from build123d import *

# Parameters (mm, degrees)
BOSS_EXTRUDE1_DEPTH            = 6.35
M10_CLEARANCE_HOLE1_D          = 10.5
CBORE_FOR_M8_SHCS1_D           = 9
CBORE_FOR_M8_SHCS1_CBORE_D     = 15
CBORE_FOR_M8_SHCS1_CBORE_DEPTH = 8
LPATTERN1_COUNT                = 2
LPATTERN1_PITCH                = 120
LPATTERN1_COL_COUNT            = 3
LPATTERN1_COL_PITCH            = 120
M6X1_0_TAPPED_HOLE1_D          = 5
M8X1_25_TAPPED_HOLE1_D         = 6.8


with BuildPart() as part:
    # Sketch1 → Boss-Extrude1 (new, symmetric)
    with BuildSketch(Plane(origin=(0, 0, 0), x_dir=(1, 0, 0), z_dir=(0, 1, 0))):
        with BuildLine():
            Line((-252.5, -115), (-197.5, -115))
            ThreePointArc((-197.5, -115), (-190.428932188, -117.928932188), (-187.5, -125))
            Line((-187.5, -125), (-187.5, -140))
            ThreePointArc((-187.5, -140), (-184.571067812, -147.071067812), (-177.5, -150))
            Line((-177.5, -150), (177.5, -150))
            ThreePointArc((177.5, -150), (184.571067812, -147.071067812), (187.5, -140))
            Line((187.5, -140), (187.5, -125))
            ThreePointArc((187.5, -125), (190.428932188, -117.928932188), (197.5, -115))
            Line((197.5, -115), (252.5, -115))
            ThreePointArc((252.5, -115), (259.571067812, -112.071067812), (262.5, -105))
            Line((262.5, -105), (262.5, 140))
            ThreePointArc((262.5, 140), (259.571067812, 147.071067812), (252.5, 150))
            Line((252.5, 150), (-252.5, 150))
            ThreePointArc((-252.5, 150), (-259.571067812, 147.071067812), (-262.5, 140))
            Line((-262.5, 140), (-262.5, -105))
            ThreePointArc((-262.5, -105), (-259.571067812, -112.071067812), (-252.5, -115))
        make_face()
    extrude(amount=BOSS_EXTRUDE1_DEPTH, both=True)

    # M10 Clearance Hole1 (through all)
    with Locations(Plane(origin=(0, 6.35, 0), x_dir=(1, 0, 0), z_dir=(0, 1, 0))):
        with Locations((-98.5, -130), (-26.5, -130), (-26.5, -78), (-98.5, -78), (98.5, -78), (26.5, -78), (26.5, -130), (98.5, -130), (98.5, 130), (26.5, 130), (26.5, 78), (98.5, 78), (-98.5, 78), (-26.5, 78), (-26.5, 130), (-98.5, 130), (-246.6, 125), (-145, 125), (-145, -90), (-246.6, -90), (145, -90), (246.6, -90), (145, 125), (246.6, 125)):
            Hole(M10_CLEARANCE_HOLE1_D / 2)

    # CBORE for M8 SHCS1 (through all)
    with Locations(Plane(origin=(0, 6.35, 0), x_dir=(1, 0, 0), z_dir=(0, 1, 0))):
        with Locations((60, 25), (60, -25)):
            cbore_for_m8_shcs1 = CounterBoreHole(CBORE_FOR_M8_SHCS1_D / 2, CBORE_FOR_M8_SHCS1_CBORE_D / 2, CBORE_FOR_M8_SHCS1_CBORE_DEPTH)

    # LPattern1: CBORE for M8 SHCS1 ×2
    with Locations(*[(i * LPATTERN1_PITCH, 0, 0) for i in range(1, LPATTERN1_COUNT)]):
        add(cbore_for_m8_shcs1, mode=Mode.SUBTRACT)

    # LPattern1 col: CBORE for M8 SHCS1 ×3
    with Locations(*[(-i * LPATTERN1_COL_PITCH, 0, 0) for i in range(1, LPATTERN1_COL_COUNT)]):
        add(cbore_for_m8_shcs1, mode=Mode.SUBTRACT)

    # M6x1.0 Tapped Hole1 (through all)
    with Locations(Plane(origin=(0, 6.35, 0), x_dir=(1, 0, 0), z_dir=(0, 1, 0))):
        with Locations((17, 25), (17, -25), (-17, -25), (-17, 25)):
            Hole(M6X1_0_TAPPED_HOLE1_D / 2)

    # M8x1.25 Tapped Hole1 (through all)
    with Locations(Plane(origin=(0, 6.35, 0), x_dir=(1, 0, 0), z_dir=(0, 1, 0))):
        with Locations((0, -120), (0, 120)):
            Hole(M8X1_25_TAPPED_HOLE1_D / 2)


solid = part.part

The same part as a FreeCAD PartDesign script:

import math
import FreeCAD as App
import Part
import Sketcher

doc = App.newDocument("Part")
body = doc.addObject("PartDesign::Body", "Body")

# Sketch on XZ plane
sketch1 = body.newObject("Sketcher::SketchObject", "Sketch")
sketch1.AttachmentSupport = (doc.getObject("XZ_Plane"), [""])
sketch1.MapMode = "FlatFace"
sketch1.addGeometry([
    Part.LineSegment(App.Vector(-252, 115, 0), App.Vector(-198, 115, 0)),  # 0
    Part.ArcOfCircle(Part.Circle(App.Vector(-198, 125, 0), App.Vector(0, 0, 1), 10), math.radians(-90), math.radians(0)),  # 1
    Part.LineSegment(App.Vector(-188, 125, 0), App.Vector(-188, 140, 0)),  # 2
    Part.ArcOfCircle(Part.Circle(App.Vector(-178, 140, 0), App.Vector(0, 0, 1), 10), math.radians(90), math.radians(180)),  # 3
    Part.LineSegment(App.Vector(-178, 150, 0), App.Vector(178, 150, 0)),  # 4
    Part.ArcOfCircle(Part.Circle(App.Vector(178, 140, 0), App.Vector(0, 0, 1), 10), math.radians(0), math.radians(90)),  # 5
    Part.LineSegment(App.Vector(188, 140, 0), App.Vector(188, 125, 0)),  # 6
    Part.ArcOfCircle(Part.Circle(App.Vector(198, 125, 0), App.Vector(0, 0, 1), 10), math.radians(180), math.radians(270)),  # 7
    Part.LineSegment(App.Vector(198, 115, 0), App.Vector(252, 115, 0)),  # 8
    Part.ArcOfCircle(Part.Circle(App.Vector(252, 105, 0), App.Vector(0, 0, 1), 10), math.radians(0), math.radians(90)),  # 9
    Part.LineSegment(App.Vector(262, 105, 0), App.Vector(262, -140, 0)),  # 10
    Part.ArcOfCircle(Part.Circle(App.Vector(252, -140, 0), App.Vector(0, 0, 1), 10), math.radians(-90), math.radians(0)),  # 11
    Part.LineSegment(App.Vector(252, -150, 0), App.Vector(-252, -150, 0)),  # 12
    Part.ArcOfCircle(Part.Circle(App.Vector(-252, -140, 0), App.Vector(0, 0, 1), 10), math.radians(180), math.radians(270)),  # 13
    Part.LineSegment(App.Vector(-262, -140, 0), App.Vector(-262, 105, 0)),  # 14
    Part.ArcOfCircle(Part.Circle(App.Vector(-252, 105, 0), App.Vector(0, 0, 1), 10), math.radians(90), math.radians(180)),  # 15
], False)
sketch1.addConstraint([
    Sketcher.Constraint("Tangent", 0, 2, 1, 1),
    Sketcher.Constraint("Tangent", 1, 2, 2, 1),
    Sketcher.Constraint("Tangent", 2, 2, 3, 2),
    Sketcher.Constraint("Tangent", 3, 1, 4, 1),
    Sketcher.Constraint("Tangent", 4, 2, 5, 2),
    Sketcher.Constraint("Tangent", 5, 1, 6, 1),
    Sketcher.Constraint("Tangent", 6, 2, 7, 1),
    Sketcher.Constraint("Tangent", 7, 2, 8, 1),
    Sketcher.Constraint("Tangent", 8, 2, 9, 2),
    Sketcher.Constraint("Tangent", 9, 1, 10, 1),
    Sketcher.Constraint("Tangent", 10, 2, 11, 2),
    Sketcher.Constraint("Tangent", 11, 1, 12, 1),
    Sketcher.Constraint("Tangent", 12, 2, 13, 2),
    Sketcher.Constraint("Tangent", 13, 1, 14, 1),
    Sketcher.Constraint("Tangent", 14, 2, 15, 2),
    Sketcher.Constraint("Tangent", 15, 1, 0, 1),
    Sketcher.Constraint("Horizontal", 0),
    Sketcher.Constraint("Vertical", 2),
    Sketcher.Constraint("Horizontal", 4),
    Sketcher.Constraint("Vertical", 6),
    Sketcher.Constraint("Horizontal", 8),
    Sketcher.Constraint("Vertical", 10),
    Sketcher.Constraint("Horizontal", 12),
    Sketcher.Constraint("Vertical", 14),
    Sketcher.Constraint("Equal", 1, 3),
    Sketcher.Constraint("Equal", 3, 5),
    Sketcher.Constraint("Equal", 5, 7),
    Sketcher.Constraint("Equal", 7, 9),
    Sketcher.Constraint("Equal", 9, 11),
    Sketcher.Constraint("Equal", 11, 13),
    Sketcher.Constraint("Equal", 13, 15),
    Sketcher.Constraint("Symmetric", 1, 3, 7, 3, -2),
    Sketcher.Constraint("Equal", 0, 8),
    Sketcher.Constraint("Radius", 1, 10.0),
    Sketcher.Constraint("DistanceX", 0, 1, 0, 2, 55.0),
    Sketcher.Constraint("DistanceX", 4, 1, 4, 2, 355.0),
    Sketcher.Constraint("DistanceY", 2, 1, 2, 2, 15.0),
    Sketcher.Constraint("DistanceY", 10, 2, 10, 1, 245.0),
    Sketcher.Constraint("DistanceY", -1, 1, 1, 3, 125.0),
])
pad1 = body.newObject("PartDesign::Pad", "Pad")
pad1.Profile = sketch1
pad1.Length = 12.7
pad1.Midplane = True

# Sketch on XZ plane
sketch2 = body.newObject("Sketcher::SketchObject", "Sketch001")
sketch2.AttachmentSupport = (doc.getObject("XZ_Plane"), [""])
sketch2.MapMode = "FlatFace"
sketch2.AttachmentOffset = App.Placement(App.Vector(0, 0, -6.35), App.Rotation())
sketch2.addGeometry([
    Part.Circle(App.Vector(-98, 130, 0), App.Vector(0, 0, 1), 5),  # 0
    Part.Circle(App.Vector(-26, 130, 0), App.Vector(0, 0, 1), 5),  # 1
    Part.Circle(App.Vector(-26, 78, 0), App.Vector(0, 0, 1), 5),  # 2
    Part.Circle(App.Vector(-98, 78, 0), App.Vector(0, 0, 1), 5),  # 3
    Part.Circle(App.Vector(98, 78, 0), App.Vector(0, 0, 1), 5),  # 4
    Part.Circle(App.Vector(26, 78, 0), App.Vector(0, 0, 1), 5),  # 5
    Part.Circle(App.Vector(26, 130, 0), App.Vector(0, 0, 1), 5),  # 6
    Part.Circle(App.Vector(98, 130, 0), App.Vector(0, 0, 1), 5),  # 7
    Part.Circle(App.Vector(98, -130, 0), App.Vector(0, 0, 1), 5),  # 8
    Part.Circle(App.Vector(26, -130, 0), App.Vector(0, 0, 1), 5),  # 9
    Part.Circle(App.Vector(26, -78, 0), App.Vector(0, 0, 1), 5),  # 10
    Part.Circle(App.Vector(98, -78, 0), App.Vector(0, 0, 1), 5),  # 11
    Part.Circle(App.Vector(-98, -78, 0), App.Vector(0, 0, 1), 5),  # 12
    Part.Circle(App.Vector(-26, -78, 0), App.Vector(0, 0, 1), 5),  # 13
    Part.Circle(App.Vector(-26, -130, 0), App.Vector(0, 0, 1), 5),  # 14
    Part.Circle(App.Vector(-98, -130, 0), App.Vector(0, 0, 1), 5),  # 15
    Part.Circle(App.Vector(-247, -125, 0), App.Vector(0, 0, 1), 5),  # 16
    Part.Circle(App.Vector(-145, -125, 0), App.Vector(0, 0, 1), 5),  # 17
    Part.Circle(App.Vector(-145, 90, 0), App.Vector(0, 0, 1), 5),  # 18
    Part.Circle(App.Vector(-247, 90, 0), App.Vector(0, 0, 1), 5),  # 19
    Part.Circle(App.Vector(145, 90, 0), App.Vector(0, 0, 1), 5),  # 20
    Part.Circle(App.Vector(247, 90, 0), App.Vector(0, 0, 1), 5),  # 21
    Part.Circle(App.Vector(145, -125, 0), App.Vector(0, 0, 1), 5),  # 22
    Part.Circle(App.Vector(247, -125, 0), App.Vector(0, 0, 1), 5),  # 23
], False)
sketch2.addConstraint([
    Sketcher.Constraint("Equal", 0, 1),
    Sketcher.Constraint("Equal", 1, 2),
    Sketcher.Constraint("Equal", 2, 3),
    Sketcher.Constraint("Equal", 3, 4),
    Sketcher.Constraint("Equal", 4, 5),
    Sketcher.Constraint("Equal", 5, 6),
    Sketcher.Constraint("Equal", 6, 7),
    Sketcher.Constraint("Equal", 7, 8),
    Sketcher.Constraint("Equal", 8, 9),
    Sketcher.Constraint("Equal", 9, 10),
    Sketcher.Constraint("Equal", 10, 11),
    Sketcher.Constraint("Equal", 11, 12),
    Sketcher.Constraint("Equal", 12, 13),
    Sketcher.Constraint("Equal", 13, 14),
    Sketcher.Constraint("Equal", 14, 15),
    Sketcher.Constraint("Equal", 15, 16),
    Sketcher.Constraint("Equal", 16, 17),
    Sketcher.Constraint("Equal", 17, 18),
    Sketcher.Constraint("Equal", 18, 19),
    Sketcher.Constraint("Equal", 19, 20),
    Sketcher.Constraint("Equal", 20, 21),
    Sketcher.Constraint("Equal", 21, 22),
    Sketcher.Constraint("Equal", 22, 23),
    Sketcher.Constraint("Symmetric", 0, 3, 8, 3, -1, 1),
    Sketcher.Constraint("Symmetric", 1, 3, 9, 3, -1, 1),
    Sketcher.Constraint("Symmetric", 2, 3, 10, 3, -1, 1),
    Sketcher.Constraint("Symmetric", 3, 3, 11, 3, -1, 1),
    Sketcher.Constraint("Symmetric", 4, 3, 12, 3, -1, 1),
    Sketcher.Constraint("Symmetric", 5, 3, 13, 3, -1, 1),
    Sketcher.Constraint("Symmetric", 6, 3, 14, 3, -1, 1),
    Sketcher.Constraint("Symmetric", 7, 3, 15, 3, -1, 1),
    Sketcher.Constraint("Symmetric", 3, 3, 4, 3, -2),
    Sketcher.Constraint("Symmetric", 2, 3, 5, 3, -2),
    Sketcher.Constraint("Symmetric", 1, 3, 6, 3, -2),
    Sketcher.Constraint("Symmetric", 0, 3, 7, 3, -2),
    Sketcher.Constraint("Symmetric", 18, 3, 20, 3, -2),
    Sketcher.Constraint("Symmetric", 19, 3, 21, 3, -2),
    Sketcher.Constraint("Symmetric", 17, 3, 22, 3, -2),
    Sketcher.Constraint("Symmetric", 16, 3, 23, 3, -2),
    Sketcher.Constraint("Horizontal", 0, 3, 1, 3),
    Sketcher.Constraint("Horizontal", 2, 3, 3, 3),
    Sketcher.Constraint("Horizontal", 16, 3, 17, 3),
    Sketcher.Constraint("Horizontal", 18, 3, 19, 3),
    Sketcher.Constraint("Vertical", 1, 3, 2, 3),
    Sketcher.Constraint("Vertical", 0, 3, 3, 3),
    Sketcher.Constraint("Vertical", 17, 3, 18, 3),
    Sketcher.Constraint("Vertical", 16, 3, 19, 3),
    Sketcher.Constraint("Diameter", 0, 10.5),
    Sketcher.Constraint("DistanceY", -1, 1, 0, 3, 130.0),
    Sketcher.Constraint("DistanceY", -1, 1, 2, 3, 78.0),
    Sketcher.Constraint("DistanceY", 16, 3, -1, 1, 125.0),
    Sketcher.Constraint("DistanceX", 17, 3, -1, 1, 145.0),
    Sketcher.Constraint("DistanceY", -1, 1, 18, 3, 90.0),
    Sketcher.Constraint("DistanceX", 0, 3, 1, 3, 72.0),
    Sketcher.Constraint("DistanceX", 2, 3, 4, 3, 125.0),
    Sketcher.Constraint("DistanceX", 16, 3, -1, 1, 246.6),
])
doc.recompute()
hole = body.newObject("PartDesign::Hole", "Hole")
hole.Profile = sketch2
hole.ThreadType = "None"
hole.Diameter = 10.5
hole.DepthType = "ThroughAll"
hole.Reversed = True

# Sketch on XZ plane
sketch3 = body.newObject("Sketcher::SketchObject", "Sketch002")
sketch3.AttachmentSupport = (doc.getObject("XZ_Plane"), [""])
sketch3.MapMode = "FlatFace"
sketch3.AttachmentOffset = App.Placement(App.Vector(0, 0, -6.35), App.Rotation())
sketch3.addGeometry([
    Part.Circle(App.Vector(60, -25, 0), App.Vector(0, 0, 1), 4.5),
    Part.Circle(App.Vector(60, 25, 0), App.Vector(0, 0, 1), 4.5),
], False)
sketch3.addConstraint([
    Sketcher.Constraint("Equal", 0, 1),
    Sketcher.Constraint("Symmetric", 0, 3, 1, 3, -1),
    Sketcher.Constraint("Diameter", 0, 9.0),
    Sketcher.Constraint("DistanceX", -1, 1, 0, 3, 60.0),
    Sketcher.Constraint("DistanceY", 0, 3, -1, 1, 25.0),
])
doc.recompute()
hole2 = body.newObject("PartDesign::Hole", "Hole001")
hole2.Profile = sketch3
hole2.ThreadType = "None"
hole2.Diameter = 9
hole2.DepthType = "ThroughAll"
hole2.HoleCutType = "Counterbore"
hole2.HoleCutDiameter = 15
hole2.HoleCutDepth = 8
hole2.Reversed = True
doc.recompute()

linearpattern = body.newObject("PartDesign::LinearPattern", "LinearPattern")
linearpattern.Originals = [hole2]
linearpattern.Direction = (doc.getObject("X_Axis"), [""])
linearpattern.Mode = "offset"
linearpattern.Offset = 120
linearpattern.Occurrences = 2
body.Tip = linearpattern
doc.recompute()

linearpattern2 = body.newObject("PartDesign::LinearPattern", "LinearPattern001")
linearpattern2.Originals = [hole2]
linearpattern2.Direction = (doc.getObject("X_Axis"), [""])
linearpattern2.Mode = "offset"
linearpattern2.Offset = 120
linearpattern2.Occurrences = 3
linearpattern2.Reversed = True
body.Tip = linearpattern2

# Sketch on XZ plane
sketch4 = body.newObject("Sketcher::SketchObject", "Sketch003")
sketch4.AttachmentSupport = (doc.getObject("XZ_Plane"), [""])
sketch4.MapMode = "FlatFace"
sketch4.AttachmentOffset = App.Placement(App.Vector(0, 0, -6.35), App.Rotation())
sketch4.addGeometry([
    Part.Circle(App.Vector(17, -25, 0), App.Vector(0, 0, 1), 2.5),
    Part.Circle(App.Vector(17, 25, 0), App.Vector(0, 0, 1), 2.5),
    Part.Circle(App.Vector(-17, 25, 0), App.Vector(0, 0, 1), 2.5),
    Part.Circle(App.Vector(-17, -25, 0), App.Vector(0, 0, 1), 2.5),
], False)
sketch4.addConstraint([
    Sketcher.Constraint("Equal", 0, 1),
    Sketcher.Constraint("Equal", 1, 2),
    Sketcher.Constraint("Equal", 2, 3),
    Sketcher.Constraint("Symmetric", 0, 3, 2, 3, -1, 1),
    Sketcher.Constraint("Symmetric", 1, 3, 3, 3, -1, 1),
    Sketcher.Constraint("Symmetric", 1, 3, 2, 3, -2),
    Sketcher.Constraint("Diameter", 0, 5.0),
    Sketcher.Constraint("DistanceX", -1, 1, 0, 3, 17.0),
    Sketcher.Constraint("DistanceY", 0, 3, -1, 1, 25.0),
])
doc.recompute()
hole3 = body.newObject("PartDesign::Hole", "Hole002")
hole3.Profile = sketch4
hole3.ThreadType = "None"
hole3.Diameter = 5
hole3.DepthType = "ThroughAll"
hole3.Reversed = True

# Sketch on XZ plane
sketch5 = body.newObject("Sketcher::SketchObject", "Sketch004")
sketch5.AttachmentSupport = (doc.getObject("XZ_Plane"), [""])
sketch5.MapMode = "FlatFace"
sketch5.AttachmentOffset = App.Placement(App.Vector(0, 0, -6.35), App.Rotation())
sketch5.addGeometry([
    Part.Circle(App.Vector(0, 120, 0), App.Vector(0, 0, 1), 3.4),
    Part.Circle(App.Vector(0, -120, 0), App.Vector(0, 0, 1), 3.4),
], False)
sketch5.addConstraint([
    Sketcher.Constraint("Equal", 0, 1),
    Sketcher.Constraint("Symmetric", 0, 3, 1, 3, -1, 1),
    Sketcher.Constraint("PointOnObject", 0, 3, -2),
    Sketcher.Constraint("Diameter", 0, 6.8),
    Sketcher.Constraint("DistanceY", -1, 1, 0, 3, 120.0),
])
doc.recompute()
hole4 = body.newObject("PartDesign::Hole", "Hole003")
hole4.Profile = sketch5
hole4.ThreadType = "None"
hole4.Diameter = 6.8
hole4.DepthType = "ThroughAll"
hole4.Reversed = True

doc.recompute()
